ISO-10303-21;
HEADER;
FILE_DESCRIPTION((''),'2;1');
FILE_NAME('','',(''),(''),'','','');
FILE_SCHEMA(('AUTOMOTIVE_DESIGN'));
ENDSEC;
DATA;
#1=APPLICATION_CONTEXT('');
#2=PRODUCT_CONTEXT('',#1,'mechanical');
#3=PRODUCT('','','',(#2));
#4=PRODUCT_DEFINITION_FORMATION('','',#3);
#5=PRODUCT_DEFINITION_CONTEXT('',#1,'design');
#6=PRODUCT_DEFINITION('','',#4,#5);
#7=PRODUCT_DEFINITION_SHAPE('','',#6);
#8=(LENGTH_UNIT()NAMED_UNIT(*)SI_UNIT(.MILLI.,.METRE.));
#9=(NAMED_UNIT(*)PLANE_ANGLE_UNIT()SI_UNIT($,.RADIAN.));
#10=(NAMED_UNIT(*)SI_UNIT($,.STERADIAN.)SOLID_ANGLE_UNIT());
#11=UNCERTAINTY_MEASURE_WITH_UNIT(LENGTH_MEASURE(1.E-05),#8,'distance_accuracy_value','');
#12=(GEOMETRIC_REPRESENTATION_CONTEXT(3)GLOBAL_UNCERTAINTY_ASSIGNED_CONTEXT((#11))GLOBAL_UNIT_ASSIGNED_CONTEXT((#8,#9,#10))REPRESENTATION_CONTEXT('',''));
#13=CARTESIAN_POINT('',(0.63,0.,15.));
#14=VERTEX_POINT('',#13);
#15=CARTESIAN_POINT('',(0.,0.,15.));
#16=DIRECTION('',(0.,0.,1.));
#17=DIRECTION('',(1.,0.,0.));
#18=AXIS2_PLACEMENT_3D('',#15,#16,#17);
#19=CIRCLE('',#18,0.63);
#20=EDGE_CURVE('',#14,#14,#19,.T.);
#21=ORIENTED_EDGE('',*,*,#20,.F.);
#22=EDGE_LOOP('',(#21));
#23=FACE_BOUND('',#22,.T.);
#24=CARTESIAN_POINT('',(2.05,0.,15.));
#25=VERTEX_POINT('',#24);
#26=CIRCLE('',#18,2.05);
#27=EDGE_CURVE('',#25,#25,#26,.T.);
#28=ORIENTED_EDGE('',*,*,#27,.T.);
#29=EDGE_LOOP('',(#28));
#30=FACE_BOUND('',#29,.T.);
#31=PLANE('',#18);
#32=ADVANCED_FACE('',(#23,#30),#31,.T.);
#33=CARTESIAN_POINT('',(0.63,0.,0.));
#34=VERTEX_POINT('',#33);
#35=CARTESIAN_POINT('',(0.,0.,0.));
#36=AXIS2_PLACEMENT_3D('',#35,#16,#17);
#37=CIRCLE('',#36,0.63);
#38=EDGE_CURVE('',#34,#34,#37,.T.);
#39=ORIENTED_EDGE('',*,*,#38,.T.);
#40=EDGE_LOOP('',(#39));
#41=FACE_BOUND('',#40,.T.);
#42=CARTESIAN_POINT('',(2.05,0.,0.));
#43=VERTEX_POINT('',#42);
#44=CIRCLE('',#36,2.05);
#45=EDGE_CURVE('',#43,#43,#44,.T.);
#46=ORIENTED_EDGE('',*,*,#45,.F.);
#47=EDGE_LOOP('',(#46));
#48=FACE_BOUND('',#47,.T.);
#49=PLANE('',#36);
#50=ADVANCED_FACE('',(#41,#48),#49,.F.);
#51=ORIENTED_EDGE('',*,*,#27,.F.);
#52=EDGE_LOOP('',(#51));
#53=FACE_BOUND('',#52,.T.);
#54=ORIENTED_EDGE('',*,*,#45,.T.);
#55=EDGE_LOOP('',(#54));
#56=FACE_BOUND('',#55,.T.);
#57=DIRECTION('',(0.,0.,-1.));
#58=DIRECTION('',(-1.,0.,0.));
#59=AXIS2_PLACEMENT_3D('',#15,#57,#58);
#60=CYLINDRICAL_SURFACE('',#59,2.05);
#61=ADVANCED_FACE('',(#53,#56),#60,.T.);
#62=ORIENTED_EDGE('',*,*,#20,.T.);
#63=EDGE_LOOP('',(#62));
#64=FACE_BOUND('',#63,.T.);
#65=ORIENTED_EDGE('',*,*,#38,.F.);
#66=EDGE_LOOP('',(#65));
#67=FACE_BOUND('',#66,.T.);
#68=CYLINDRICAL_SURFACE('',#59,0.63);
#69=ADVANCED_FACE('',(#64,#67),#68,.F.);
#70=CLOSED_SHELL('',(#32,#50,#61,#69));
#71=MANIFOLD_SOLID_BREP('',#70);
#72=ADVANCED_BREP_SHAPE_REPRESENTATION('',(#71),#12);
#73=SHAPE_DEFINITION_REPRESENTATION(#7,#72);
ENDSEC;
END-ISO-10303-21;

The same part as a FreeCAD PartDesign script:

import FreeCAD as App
import Part
import Sketcher
Q = App.Units.Quantity

doc = App.newDocument("Part")
body = doc.addObject("PartDesign::Body", "Body")

sketch1 = doc.addObject("Sketcher::SketchObject", "Sketch")
body.addObject(sketch1)
sketch1.AttachmentSupport = (doc.XY_Plane, [""])
sketch1.MapMode = "FlatFace"
sketch1.addGeometry([
    Part.Circle(App.Vector(0, 0, 0), App.Vector(0, 0, 1), 2),
    Part.Circle(App.Vector(0, 0, 0), App.Vector(0, 0, 1), 0.6),
], False)
sketch1.addConstraint([
    Sketcher.Constraint("Coincident", 0, 3, -1, 1),
    Sketcher.Constraint("Coincident", 1, 3, -1, 1),
    Sketcher.Constraint("Diameter", 0, Q("4.1 mm")),
    Sketcher.Constraint("Diameter", 1, Q("1.26 mm")),
])
pad1 = doc.addObject("PartDesign::Pad", "Pad")
body.addObject(pad1)
pad1.Profile = sketch1
pad1.Length = 15

doc.recompute()
